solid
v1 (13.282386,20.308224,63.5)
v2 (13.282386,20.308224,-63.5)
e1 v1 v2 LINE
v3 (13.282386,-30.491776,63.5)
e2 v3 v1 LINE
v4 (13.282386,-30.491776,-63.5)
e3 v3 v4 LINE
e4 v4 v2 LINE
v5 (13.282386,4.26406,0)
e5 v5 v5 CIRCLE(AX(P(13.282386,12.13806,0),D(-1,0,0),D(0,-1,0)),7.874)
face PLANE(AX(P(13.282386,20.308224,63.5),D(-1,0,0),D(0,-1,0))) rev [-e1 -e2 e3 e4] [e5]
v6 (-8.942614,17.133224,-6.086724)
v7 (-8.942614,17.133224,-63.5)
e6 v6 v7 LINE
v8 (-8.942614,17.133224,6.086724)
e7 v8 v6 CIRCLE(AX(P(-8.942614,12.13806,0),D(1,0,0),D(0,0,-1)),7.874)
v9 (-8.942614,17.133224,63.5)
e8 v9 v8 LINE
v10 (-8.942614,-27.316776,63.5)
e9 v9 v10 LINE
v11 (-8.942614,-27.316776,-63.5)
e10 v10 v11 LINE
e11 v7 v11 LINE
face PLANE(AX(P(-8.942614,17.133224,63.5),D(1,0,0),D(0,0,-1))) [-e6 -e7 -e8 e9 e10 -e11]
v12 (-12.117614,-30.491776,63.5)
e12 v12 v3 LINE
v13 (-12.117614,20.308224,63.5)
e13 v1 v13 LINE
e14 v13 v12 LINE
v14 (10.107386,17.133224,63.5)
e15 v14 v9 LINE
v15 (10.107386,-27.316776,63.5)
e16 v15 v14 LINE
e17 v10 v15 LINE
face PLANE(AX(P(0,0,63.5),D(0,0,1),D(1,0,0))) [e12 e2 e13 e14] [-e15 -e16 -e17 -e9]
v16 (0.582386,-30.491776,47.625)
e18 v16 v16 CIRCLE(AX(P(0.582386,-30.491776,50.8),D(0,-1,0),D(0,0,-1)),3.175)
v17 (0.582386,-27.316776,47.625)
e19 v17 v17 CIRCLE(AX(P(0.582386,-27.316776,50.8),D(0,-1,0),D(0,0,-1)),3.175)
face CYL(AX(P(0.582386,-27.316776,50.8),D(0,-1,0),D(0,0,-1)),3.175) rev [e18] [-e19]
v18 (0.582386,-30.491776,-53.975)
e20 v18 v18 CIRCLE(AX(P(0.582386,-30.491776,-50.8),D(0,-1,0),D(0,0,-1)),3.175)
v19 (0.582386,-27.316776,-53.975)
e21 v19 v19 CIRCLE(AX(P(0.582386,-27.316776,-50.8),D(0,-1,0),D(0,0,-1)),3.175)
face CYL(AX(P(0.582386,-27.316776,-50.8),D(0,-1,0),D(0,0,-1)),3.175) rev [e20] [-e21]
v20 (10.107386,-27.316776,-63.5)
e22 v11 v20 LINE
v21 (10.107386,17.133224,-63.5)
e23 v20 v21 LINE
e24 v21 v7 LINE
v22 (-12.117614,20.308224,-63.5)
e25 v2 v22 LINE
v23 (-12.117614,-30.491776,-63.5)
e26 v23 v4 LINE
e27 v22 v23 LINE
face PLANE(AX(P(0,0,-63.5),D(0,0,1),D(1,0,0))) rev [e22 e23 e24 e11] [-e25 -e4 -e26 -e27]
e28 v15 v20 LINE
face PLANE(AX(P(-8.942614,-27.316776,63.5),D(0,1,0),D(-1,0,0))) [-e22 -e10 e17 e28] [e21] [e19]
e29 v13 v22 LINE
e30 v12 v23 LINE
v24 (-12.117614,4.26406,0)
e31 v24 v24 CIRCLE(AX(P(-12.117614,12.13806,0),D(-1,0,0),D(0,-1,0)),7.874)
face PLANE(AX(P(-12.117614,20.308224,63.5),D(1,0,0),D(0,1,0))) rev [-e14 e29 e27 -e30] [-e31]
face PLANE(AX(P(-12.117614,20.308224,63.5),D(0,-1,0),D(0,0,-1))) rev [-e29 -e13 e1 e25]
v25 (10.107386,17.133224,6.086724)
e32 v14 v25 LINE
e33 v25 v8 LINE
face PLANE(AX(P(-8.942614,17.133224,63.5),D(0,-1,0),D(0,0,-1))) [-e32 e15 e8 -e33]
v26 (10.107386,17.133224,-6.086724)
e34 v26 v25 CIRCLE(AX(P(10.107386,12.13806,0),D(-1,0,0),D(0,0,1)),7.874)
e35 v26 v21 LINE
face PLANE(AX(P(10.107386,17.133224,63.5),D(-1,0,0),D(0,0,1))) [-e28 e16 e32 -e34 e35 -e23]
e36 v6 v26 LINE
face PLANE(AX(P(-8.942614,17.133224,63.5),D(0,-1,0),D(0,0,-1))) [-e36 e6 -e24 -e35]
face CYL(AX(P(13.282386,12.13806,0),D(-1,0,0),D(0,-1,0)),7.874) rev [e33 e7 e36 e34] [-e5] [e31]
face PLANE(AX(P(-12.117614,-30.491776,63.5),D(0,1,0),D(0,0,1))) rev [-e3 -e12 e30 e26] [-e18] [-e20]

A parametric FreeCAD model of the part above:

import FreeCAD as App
import Part
import Sketcher
from FreeCAD import Vector
Q = App.Units.Quantity


def add_polygon(sketch, points):
    """Adds a closed chain of lines whose ends are joined by coincident constraints."""
    first, n = sketch.GeometryCount, len(points)
    for a, b in zip(points, points[1:] + points[:1]):
        sketch.addGeometry(Part.LineSegment(App.Vector(*a, 0), App.Vector(*b, 0)), False)
    for i in range(n):
        sketch.addConstraint(Sketcher.Constraint("Coincident", first + i, 2, first + (i + 1) % n, 1))

doc = App.newDocument("Part")
body = doc.addObject("PartDesign::Body", "Body")

# Sketch on XY plane
sketch1 = doc.addObject("Sketcher::SketchObject", "Sketch")
body.addObject(sketch1)
sketch1.AttachmentSupport = (doc.XY_Plane, [""])
sketch1.MapMode = "FlatFace"
add_polygon(sketch1, [(-12.117614, 20.308224), (-12.117614, -30.491776), (13.282386, -30.491776), (13.282386, 20.308224)])  # lines 0-3
add_polygon(sketch1, [(10.107386, -27.316776), (-8.942614, -27.316776), (-8.942614, 17.133224), (10.107386, 17.133224)])  # lines 4-7
sketch1.addConstraint([
    Sketcher.Constraint("Vertical", 0),
    Sketcher.Constraint("Horizontal", 1),
    Sketcher.Constraint("Vertical", 2),
    Sketcher.Constraint("Horizontal", 3),
    Sketcher.Constraint("Horizontal", 4),
    Sketcher.Constraint("Vertical", 5),
    Sketcher.Constraint("Horizontal", 6),
    Sketcher.Constraint("Vertical", 7),
    Sketcher.Constraint("DistanceX", 1, 1, 1, 2, Q("1 in")),
    Sketcher.Constraint("DistanceY", 0, 2, 0, 1, Q("2 in")),
    Sketcher.Constraint("DistanceX", 4, 2, 4, 1, Q("0.75 in")),
    Sketcher.Constraint("DistanceY", 5, 1, 5, 2, Q("1.75 in")),
    Sketcher.Constraint("DistanceX", 0, 2, 4, 2, Q("0.125 in")),
    Sketcher.Constraint("DistanceY", 0, 2, 4, 2, Q("0.125 in")),
    Sketcher.Constraint("DistanceX", 0, 2, -1, 1, Q("12.117614 mm")),
    Sketcher.Constraint("DistanceY", 0, 2, -1, 1, Q("30.491776 mm")),
])
pad1 = doc.addObject("PartDesign::Pad", "Pad")
body.addObject(pad1)
pad1.Profile = sketch1
pad1.Length = Q("5 in")
pad1.Midplane = True

# Sketch on YZ plane
sketch2 = doc.addObject("Sketcher::SketchObject", "Sketch001")
body.addObject(sketch2)
sketch2.AttachmentSupport = (doc.YZ_Plane, [""])
sketch2.MapMode = "FlatFace"
sketch2.AttachmentOffset = App.Placement(Vector(0, 0, -12.117614), App.Rotation())
sketch2.addGeometry(Part.Circle(Vector(12.13806, 0, 0), Vector(0, 0, 1), 7.874), False)
sketch2.addConstraint([
    Sketcher.Constraint("PointOnObject", 0, 3, -1),
    Sketcher.Constraint("Diameter", 0, Q("0.62 in")),
    Sketcher.Constraint("DistanceX", -1, 1, 0, 3, Q("12.13806 mm")),
])
pocket1 = doc.addObject("PartDesign::Pocket", "Pocket")
body.addObject(pocket1)
pocket1.Profile = sketch2
pocket1.Length = Q("1 in")
pocket1.Reversed = True

# Sketch on XZ plane
sketch3 = doc.addObject("Sketcher::SketchObject", "Sketch002")
body.addObject(sketch3)
sketch3.AttachmentSupport = (doc.XZ_Plane, [""])
sketch3.MapMode = "FlatFace"
sketch3.AttachmentOffset = App.Placement(Vector(0, 0, 30.491776), App.Rotation())
sketch3.addGeometry([
    Part.Circle(Vector(0.582386, 50.8, 0), Vector(0, 0, 1), 3.175),
    Part.Circle(Vector(0.582386, -50.8, 0), Vector(0, 0, 1), 3.175),
], False)
sketch3.addConstraint([
    Sketcher.Constraint("Equal", 0, 1),
    Sketcher.Constraint("Symmetric", 0, 3, 1, 3, -1),
    Sketcher.Constraint("Diameter", 0, Q("0.25 in")),
    Sketcher.Constraint("DistanceY", -1, 1, 0, 3, Q("2 in")),
    Sketcher.Constraint("DistanceX", -1, 1, 0, 3, Q("0.582386 mm")),
])
pocket2 = doc.addObject("PartDesign::Pocket", "Pocket001")
body.addObject(pocket2)
pocket2.Profile = sketch3
pocket2.Length = Q("0.125 in")

doc.recompute()
